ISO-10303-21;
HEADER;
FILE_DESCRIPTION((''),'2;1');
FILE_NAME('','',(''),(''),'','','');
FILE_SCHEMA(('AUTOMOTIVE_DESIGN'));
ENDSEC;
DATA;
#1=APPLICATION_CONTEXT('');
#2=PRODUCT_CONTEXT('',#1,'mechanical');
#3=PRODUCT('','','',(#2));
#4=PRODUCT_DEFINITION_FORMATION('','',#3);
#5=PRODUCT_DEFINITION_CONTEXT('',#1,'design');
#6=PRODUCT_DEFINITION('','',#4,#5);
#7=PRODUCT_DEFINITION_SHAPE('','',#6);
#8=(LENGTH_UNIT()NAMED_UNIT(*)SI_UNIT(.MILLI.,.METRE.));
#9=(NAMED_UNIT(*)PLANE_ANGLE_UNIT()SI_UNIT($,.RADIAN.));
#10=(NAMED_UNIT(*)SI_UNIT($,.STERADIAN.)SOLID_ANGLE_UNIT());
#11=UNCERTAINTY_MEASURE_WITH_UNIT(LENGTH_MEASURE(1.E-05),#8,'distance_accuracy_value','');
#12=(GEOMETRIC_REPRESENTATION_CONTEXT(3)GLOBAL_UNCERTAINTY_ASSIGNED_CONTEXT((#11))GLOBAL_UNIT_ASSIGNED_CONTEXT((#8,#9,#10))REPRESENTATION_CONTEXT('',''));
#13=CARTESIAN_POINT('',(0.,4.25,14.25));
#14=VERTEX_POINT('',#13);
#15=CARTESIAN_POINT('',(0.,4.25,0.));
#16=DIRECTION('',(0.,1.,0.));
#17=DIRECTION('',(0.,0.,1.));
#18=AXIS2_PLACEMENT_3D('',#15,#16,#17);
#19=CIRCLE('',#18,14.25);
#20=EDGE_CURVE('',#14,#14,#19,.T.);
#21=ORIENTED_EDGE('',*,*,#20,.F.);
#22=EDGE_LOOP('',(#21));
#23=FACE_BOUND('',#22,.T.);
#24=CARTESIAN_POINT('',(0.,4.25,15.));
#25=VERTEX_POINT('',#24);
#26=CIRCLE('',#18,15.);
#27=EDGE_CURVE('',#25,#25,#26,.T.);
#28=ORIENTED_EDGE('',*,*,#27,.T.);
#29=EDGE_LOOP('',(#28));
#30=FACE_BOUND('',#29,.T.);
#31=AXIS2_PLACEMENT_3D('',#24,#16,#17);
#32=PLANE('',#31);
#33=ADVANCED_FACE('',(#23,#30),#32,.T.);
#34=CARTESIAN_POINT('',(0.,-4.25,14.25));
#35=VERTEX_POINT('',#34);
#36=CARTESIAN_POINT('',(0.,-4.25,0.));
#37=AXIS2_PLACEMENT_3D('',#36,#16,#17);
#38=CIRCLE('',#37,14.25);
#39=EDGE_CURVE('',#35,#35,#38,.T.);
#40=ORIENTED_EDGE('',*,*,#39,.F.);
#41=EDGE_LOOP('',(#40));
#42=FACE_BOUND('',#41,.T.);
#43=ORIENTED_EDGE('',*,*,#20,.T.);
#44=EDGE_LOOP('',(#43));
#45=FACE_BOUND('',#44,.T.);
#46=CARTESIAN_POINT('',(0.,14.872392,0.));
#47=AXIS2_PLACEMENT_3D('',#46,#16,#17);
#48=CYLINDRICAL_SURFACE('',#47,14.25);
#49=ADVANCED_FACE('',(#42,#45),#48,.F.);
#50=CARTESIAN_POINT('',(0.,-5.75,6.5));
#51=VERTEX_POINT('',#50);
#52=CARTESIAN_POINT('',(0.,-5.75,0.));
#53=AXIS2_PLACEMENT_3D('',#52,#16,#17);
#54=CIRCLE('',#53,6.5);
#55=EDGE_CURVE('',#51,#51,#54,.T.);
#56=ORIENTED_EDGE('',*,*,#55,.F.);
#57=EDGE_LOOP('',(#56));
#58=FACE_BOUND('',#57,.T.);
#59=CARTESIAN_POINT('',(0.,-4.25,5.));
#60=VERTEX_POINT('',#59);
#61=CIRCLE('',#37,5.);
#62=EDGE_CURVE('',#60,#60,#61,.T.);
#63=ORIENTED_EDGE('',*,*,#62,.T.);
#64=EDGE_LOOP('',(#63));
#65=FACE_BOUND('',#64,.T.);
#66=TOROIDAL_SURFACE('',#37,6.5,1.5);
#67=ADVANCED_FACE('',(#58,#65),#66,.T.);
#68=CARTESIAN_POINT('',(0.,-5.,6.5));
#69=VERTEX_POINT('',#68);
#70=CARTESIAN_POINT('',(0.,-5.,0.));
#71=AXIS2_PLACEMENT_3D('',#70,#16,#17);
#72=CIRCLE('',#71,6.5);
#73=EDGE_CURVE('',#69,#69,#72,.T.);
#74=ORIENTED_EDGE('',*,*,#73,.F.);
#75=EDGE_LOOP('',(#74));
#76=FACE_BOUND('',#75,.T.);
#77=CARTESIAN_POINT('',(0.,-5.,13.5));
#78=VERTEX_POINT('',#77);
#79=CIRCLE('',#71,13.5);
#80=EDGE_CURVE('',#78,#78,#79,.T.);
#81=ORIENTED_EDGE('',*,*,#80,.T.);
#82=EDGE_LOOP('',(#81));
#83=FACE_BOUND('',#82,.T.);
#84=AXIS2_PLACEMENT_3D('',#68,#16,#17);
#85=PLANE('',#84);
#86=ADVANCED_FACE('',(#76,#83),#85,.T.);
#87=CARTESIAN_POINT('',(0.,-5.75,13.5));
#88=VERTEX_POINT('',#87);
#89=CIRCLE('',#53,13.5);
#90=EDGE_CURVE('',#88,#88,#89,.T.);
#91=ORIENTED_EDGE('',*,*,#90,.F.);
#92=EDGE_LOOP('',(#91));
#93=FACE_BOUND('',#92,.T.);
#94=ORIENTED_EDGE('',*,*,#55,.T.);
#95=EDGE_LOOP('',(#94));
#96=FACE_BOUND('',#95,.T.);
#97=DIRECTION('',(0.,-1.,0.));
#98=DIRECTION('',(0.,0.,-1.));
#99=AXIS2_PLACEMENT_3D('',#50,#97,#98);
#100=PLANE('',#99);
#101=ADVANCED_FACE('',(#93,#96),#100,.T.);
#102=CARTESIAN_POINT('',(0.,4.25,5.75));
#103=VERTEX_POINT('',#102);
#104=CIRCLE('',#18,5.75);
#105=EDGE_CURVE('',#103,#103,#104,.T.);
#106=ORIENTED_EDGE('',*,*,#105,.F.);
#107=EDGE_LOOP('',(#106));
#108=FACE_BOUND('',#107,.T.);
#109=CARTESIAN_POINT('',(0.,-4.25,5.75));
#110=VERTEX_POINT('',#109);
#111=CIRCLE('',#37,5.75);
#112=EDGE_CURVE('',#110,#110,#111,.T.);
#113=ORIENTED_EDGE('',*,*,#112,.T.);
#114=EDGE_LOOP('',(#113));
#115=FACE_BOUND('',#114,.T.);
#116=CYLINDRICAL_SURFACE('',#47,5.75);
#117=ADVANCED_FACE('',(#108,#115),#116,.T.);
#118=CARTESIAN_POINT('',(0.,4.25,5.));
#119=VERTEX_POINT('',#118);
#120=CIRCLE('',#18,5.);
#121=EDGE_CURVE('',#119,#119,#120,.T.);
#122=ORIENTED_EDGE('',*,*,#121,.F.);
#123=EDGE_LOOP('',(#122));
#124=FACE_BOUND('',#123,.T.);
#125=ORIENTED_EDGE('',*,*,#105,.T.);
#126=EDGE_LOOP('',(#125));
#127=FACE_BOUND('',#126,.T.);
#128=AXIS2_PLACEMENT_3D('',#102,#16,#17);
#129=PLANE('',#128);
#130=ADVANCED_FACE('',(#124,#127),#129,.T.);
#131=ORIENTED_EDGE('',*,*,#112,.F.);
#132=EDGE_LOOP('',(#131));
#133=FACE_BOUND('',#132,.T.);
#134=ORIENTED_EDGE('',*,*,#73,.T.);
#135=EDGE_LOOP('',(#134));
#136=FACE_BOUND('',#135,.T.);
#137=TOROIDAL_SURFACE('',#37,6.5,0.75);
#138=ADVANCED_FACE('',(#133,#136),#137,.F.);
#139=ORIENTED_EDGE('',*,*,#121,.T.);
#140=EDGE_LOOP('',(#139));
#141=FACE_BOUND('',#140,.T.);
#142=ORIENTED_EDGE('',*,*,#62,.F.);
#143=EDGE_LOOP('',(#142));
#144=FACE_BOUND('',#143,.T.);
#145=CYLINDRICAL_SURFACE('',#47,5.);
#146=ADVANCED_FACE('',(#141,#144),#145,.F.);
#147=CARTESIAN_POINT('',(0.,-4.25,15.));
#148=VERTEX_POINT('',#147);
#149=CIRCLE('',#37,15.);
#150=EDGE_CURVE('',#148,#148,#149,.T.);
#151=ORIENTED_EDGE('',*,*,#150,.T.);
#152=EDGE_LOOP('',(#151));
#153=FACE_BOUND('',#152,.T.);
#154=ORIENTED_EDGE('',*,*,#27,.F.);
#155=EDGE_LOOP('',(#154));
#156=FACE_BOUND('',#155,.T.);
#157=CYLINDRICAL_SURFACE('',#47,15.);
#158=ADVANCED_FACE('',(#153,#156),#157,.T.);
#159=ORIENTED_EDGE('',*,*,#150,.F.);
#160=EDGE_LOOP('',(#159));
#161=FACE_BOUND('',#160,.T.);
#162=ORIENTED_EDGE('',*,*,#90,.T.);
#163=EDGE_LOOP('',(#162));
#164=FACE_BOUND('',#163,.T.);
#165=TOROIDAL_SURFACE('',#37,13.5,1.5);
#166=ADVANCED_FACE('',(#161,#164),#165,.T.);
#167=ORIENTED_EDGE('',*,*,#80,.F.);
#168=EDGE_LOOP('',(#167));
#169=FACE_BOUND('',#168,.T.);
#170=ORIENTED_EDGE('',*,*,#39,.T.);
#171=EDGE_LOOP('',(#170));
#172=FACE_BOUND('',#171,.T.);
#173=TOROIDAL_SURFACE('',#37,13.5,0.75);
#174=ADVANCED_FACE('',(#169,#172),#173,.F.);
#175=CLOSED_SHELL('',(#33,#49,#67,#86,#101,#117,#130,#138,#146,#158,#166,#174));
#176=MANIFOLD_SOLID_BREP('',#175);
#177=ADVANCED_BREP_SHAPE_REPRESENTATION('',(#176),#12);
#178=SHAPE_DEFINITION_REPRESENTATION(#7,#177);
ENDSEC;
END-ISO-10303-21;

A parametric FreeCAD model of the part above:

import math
import FreeCAD as App
import Part
import Sketcher

V = App.Vector
Q = App.Units.Quantity

doc = App.newDocument("Part")
body = doc.addObject("PartDesign::Body", "Body")

# Sketch on YZ plane
sketch1 = doc.addObject("Sketcher::SketchObject", "Sketch")
body.addObject(sketch1)
sketch1.AttachmentSupport = (doc.YZ_Plane, [""])
sketch1.MapMode = "FlatFace"
sketch1.addGeometry([
    Part.LineSegment(V(-4.2, 5, 0), V(4.2, 5, 0)),  # 0
    Part.LineSegment(V(4.2, 5, 0), V(4.2, 5.8, 0)),  # 1
    Part.LineSegment(V(4.2, 5.8, 0), V(-4.2, 5.8, 0)),  # 2
    Part.ArcOfCircle(Part.Circle(V(-4.2, 6.5, 0), V(0, 0, 1), 0.8), math.radians(180), math.radians(270)),  # 3
    Part.LineSegment(V(-5, 6.5, 0), V(-5, 13.5, 0)),  # 4
    Part.ArcOfCircle(Part.Circle(V(-4.2, 13.5, 0), V(0, 0, 1), 0.8), math.radians(90), math.radians(180)),  # 5
    Part.LineSegment(V(-4.2, 14.2, 0), V(4.2, 14.2, 0)),  # 6
    Part.LineSegment(V(4.2, 14.2, 0), V(4.2, 15, 0)),  # 7
    Part.LineSegment(V(4.2, 15, 0), V(-4.2, 15, 0)),  # 8
    Part.ArcOfCircle(Part.Circle(V(-4.3, 13.5, 0), V(0, 0, 1), 1.5), math.radians(90), math.radians(180)),  # 9
    Part.LineSegment(V(-5.8, 13.5, 0), V(-5.8, 6.5, 0)),  # 10
    Part.ArcOfCircle(Part.Circle(V(-4.3, 6.5, 0), V(0, 0, 1), 1.5), math.radians(180), math.radians(270)),  # 11
], False)
sketch1.addConstraint([
    Sketcher.Constraint("Coincident", 0, 2, 1, 1),
    Sketcher.Constraint("Coincident", 1, 2, 2, 1),
    Sketcher.Constraint("Tangent", 2, 2, 3, 2),
    Sketcher.Constraint("Tangent", 3, 1, 4, 1),
    Sketcher.Constraint("Tangent", 4, 2, 5, 2),
    Sketcher.Constraint("Tangent", 5, 1, 6, 1),
    Sketcher.Constraint("Coincident", 6, 2, 7, 1),
    Sketcher.Constraint("Coincident", 7, 2, 8, 1),
    Sketcher.Constraint("Tangent", 8, 2, 9, 1),
    Sketcher.Constraint("Tangent", 9, 2, 10, 1),
    Sketcher.Constraint("Tangent", 10, 2, 11, 1),
    Sketcher.Constraint("Tangent", 11, 2, 0, 1),
    Sketcher.Constraint("Horizontal", 0),
    Sketcher.Constraint("Vertical", 1),
    Sketcher.Constraint("Horizontal", 2),
    Sketcher.Constraint("Vertical", 4),
    Sketcher.Constraint("Horizontal", 6),
    Sketcher.Constraint("Vertical", 7),
    Sketcher.Constraint("Horizontal", 8),
    Sketcher.Constraint("Vertical", 10),
    Sketcher.Constraint("Coincident", 9, 3, 5, 3),
    Sketcher.Constraint("Coincident", 11, 3, 3, 3),
    Sketcher.Constraint("Equal", 3, 5),
    Sketcher.Constraint("Vertical", 1, 2, 6, 2),
    Sketcher.Constraint("Radius", 9, Q("1.5 mm")),
    Sketcher.Constraint("DistanceY", 4, 1, 4, 2, Q("7 mm")),
    Sketcher.Constraint("Radius", 3, Q("0.75 mm")),
    Sketcher.Constraint("DistanceX", 0, 1, 0, 2, Q("8.5 mm")),
    Sketcher.Constraint("DistanceY", -1, 1, 0, 2, Q("5 mm")),
    Sketcher.Constraint("DistanceX", 3, 1, -1, 1, Q("5 mm")),
])
revolution = doc.addObject("PartDesign::Revolution", "Revolution")
body.addObject(revolution)
revolution.Profile = sketch1
revolution.ReferenceAxis = (sketch1, ["H_Axis"])
revolution.Angle = 360

doc.recompute()
